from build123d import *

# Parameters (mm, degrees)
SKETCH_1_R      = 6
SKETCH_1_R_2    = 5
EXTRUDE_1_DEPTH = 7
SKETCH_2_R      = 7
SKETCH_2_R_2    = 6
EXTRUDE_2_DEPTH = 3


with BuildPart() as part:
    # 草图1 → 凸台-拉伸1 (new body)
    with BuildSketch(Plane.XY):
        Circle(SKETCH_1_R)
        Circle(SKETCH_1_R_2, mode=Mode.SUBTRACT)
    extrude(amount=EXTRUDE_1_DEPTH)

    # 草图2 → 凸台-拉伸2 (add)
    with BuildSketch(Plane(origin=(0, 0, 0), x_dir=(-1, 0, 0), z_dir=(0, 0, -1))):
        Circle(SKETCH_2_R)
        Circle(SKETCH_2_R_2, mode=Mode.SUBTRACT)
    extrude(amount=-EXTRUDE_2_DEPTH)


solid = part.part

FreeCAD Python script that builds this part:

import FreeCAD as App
import Part
import Sketcher

V = App.Vector

doc = App.newDocument("Part")
body = doc.addObject("PartDesign::Body", "Body")

sketch1 = body.newObject("Sketcher::SketchObject", "Sketch")
sketch1.AttachmentSupport = (doc.getObject("XY_Plane"), [""])
sketch1.MapMode = "FlatFace"
sketch1.addGeometry(Part.Circle(V(0, 0, 0), V(0, 0, 1), 6), False)
sketch1.addGeometry(Part.Circle(V(0, 0, 0), V(0, 0, 1), 5), False)
sketch1.addConstraint(Sketcher.Constraint("Coincident", 0, 3, -1, 1))
sketch1.addConstraint(Sketcher.Constraint("Coincident", 1, 3, -1, 1))
sketch1.addConstraint(Sketcher.Constraint("Diameter", 0, 12.0))
sketch1.addConstraint(Sketcher.Constraint("Diameter", 1, 10.0))
pad1 = body.newObject("PartDesign::Pad", "Pad")
pad1.Profile = sketch1
pad1.Length = 7

sketch2 = body.newObject("Sketcher::SketchObject", "Sketch001")
sketch2.AttachmentSupport = (doc.getObject("XY_Plane"), [""])
sketch2.MapMode = "FlatFace"
sketch2.addGeometry(Part.Circle(V(0, 0, 0), V(0, 0, 1), 7), False)
sketch2.addGeometry(Part.Circle(V(0, 0, 0), V(0, 0, 1), 6), False)
sketch2.addConstraint(Sketcher.Constraint("Coincident", 0, 3, -1, 1))
sketch2.addConstraint(Sketcher.Constraint("Coincident", 1, 3, -1, 1))
sketch2.addConstraint(Sketcher.Constraint("Diameter", 0, 14.0))
sketch2.addConstraint(Sketcher.Constraint("Diameter", 1, 12.0))
pad2 = body.newObject("PartDesign::Pad", "Pad001")
pad2.Profile = sketch2
pad2.Length = 3

doc.recompute()
